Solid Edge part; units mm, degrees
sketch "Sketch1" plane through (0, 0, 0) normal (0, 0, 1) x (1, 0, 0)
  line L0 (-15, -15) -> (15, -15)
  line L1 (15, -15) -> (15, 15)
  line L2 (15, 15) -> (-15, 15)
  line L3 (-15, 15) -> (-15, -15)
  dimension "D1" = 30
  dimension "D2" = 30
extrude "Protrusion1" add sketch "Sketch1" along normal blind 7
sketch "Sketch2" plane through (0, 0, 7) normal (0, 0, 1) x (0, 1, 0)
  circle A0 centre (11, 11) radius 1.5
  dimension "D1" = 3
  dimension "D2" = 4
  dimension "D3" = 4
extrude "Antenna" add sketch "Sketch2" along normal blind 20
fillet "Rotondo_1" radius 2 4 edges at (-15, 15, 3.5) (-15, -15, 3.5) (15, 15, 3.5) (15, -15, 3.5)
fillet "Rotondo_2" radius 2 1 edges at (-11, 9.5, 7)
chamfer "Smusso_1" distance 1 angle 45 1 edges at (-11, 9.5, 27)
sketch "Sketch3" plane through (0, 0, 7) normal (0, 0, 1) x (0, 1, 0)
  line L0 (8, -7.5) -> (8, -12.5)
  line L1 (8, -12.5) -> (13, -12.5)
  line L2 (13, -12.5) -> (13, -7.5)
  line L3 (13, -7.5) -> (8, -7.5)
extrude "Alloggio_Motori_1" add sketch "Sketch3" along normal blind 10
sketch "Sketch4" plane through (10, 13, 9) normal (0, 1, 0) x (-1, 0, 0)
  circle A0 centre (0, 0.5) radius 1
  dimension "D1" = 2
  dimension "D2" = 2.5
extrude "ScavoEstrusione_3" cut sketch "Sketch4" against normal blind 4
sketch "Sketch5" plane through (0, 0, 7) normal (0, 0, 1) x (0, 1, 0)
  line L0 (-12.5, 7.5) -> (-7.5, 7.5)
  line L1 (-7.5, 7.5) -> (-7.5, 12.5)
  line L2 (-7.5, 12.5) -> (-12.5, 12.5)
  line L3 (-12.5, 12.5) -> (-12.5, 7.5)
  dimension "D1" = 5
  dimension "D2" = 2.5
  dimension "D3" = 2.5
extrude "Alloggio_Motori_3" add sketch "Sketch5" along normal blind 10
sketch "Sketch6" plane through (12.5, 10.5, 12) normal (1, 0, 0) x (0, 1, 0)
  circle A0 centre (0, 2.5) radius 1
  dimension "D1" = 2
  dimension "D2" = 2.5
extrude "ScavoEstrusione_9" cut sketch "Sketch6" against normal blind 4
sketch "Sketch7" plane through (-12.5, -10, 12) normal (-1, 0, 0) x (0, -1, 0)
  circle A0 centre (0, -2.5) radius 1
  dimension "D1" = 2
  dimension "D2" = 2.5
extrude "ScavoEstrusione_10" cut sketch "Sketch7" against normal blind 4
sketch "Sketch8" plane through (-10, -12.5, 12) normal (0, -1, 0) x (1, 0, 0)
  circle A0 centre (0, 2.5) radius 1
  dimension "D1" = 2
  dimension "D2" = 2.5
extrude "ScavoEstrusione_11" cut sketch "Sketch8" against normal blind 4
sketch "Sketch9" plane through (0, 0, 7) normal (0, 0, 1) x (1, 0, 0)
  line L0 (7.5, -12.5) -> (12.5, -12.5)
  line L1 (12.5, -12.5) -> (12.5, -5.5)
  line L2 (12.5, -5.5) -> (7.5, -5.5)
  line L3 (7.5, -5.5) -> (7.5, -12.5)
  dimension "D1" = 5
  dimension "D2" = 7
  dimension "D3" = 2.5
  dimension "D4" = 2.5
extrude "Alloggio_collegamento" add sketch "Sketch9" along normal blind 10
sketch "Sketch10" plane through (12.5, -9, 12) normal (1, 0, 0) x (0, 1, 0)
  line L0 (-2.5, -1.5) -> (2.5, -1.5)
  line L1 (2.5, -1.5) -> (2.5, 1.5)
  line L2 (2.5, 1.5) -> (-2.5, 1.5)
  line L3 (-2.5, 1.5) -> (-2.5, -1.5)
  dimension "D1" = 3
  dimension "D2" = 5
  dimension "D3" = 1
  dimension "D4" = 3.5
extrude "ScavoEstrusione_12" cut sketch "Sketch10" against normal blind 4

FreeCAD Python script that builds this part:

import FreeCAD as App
import Part
import Sketcher
from FreeCAD import Vector
Q = App.Units.Quantity


def edges_at(feature, points):
    """Names of the edges that pass closest to the given points."""
    edges = feature.Shape.Edges
    near = lambda p: min(range(len(edges)), key=lambda i: edges[i].distToShape(Part.Vertex(*p))[0])
    return sorted({f"Edge{near(p) + 1}" for p in points})


def add_polygon(sketch, points):
    """Adds a closed chain of lines whose ends are joined by coincident constraints."""
    first, n = sketch.GeometryCount, len(points)
    for a, b in zip(points, points[1:] + points[:1]):
        sketch.addGeometry(Part.LineSegment(App.Vector(*a, 0), App.Vector(*b, 0)), False)
    for i in range(n):
        sketch.addConstraint(Sketcher.Constraint("Coincident", first + i, 2, first + (i + 1) % n, 1))

doc = App.newDocument("Part")
params = doc.addObject("Spreadsheet::Sheet", "Params")
for row, (alias, value) in enumerate([
    ("pad1_length", "7 mm"),
    ("sketch2_diameter", "3 mm"),
    ("pad2_length", "20 mm"),
    ("fillet_radius", "2 mm"),
    ("fillet2_radius", "2 mm"),
    ("chamfer_size", "1 mm"),
    ("sketch3_width", "5 mm"),
    ("pad3_length", "10 mm"),
    ("sketch4_diameter", "2 mm"),
    ("pocket1_length", "4 mm"),
    ("sketch5_width", "5 mm"),
    ("pad4_length", "10 mm"),
    ("sketch6_diameter", "2 mm"),
    ("pocket2_length", "4 mm"),
    ("sketch7_diameter", "2 mm"),
    ("pocket3_length", "4 mm"),
    ("sketch8_diameter", "2 mm"),
    ("pocket4_length", "4 mm"),
    ("sketch9_height", "7 mm"),
    ("pad5_length", "10 mm"),
    ("sketch10_width", "5 mm"),
    ("sketch10_height", "3 mm"),
    ("pocket5_length", "4 mm"),
], start=1):
    params.set(f"A{row}", alias)
    params.set(f"B{row}", "=" + value)
    params.setAlias(f"B{row}", alias)

body = doc.addObject("PartDesign::Body", "Body")

# Sketch on XY plane
sketch1 = body.newObject("Sketcher::SketchObject", "Sketch")
sketch1.AttachmentSupport = (doc.getObject("XY_Plane"), [""])
sketch1.MapMode = "FlatFace"
add_polygon(sketch1, [(-15, 15), (-15, -15), (15, -15), (15, 15)])  # lines 0-3
sketch1.addConstraint([
    Sketcher.Constraint("Vertical", 0),
    Sketcher.Constraint("Horizontal", 1),
    Sketcher.Constraint("Vertical", 2),
    Sketcher.Constraint("Horizontal", 3),
    Sketcher.Constraint("Symmetric", 0, 2, 2, 2, -1, 1),
    Sketcher.Constraint("Equal", 3, 0),
    Sketcher.Constraint("DistanceX", 0, 2, -1, 1, Q("15 mm")),
])
pad1 = body.newObject("PartDesign::Pad", "Pad")
pad1.Profile = sketch1
pad1.setExpression("Length", "Params.pad1_length")

# Sketch on XY plane
sketch2 = body.newObject("Sketcher::SketchObject", "Sketch001")
sketch2.AttachmentSupport = (doc.getObject("XY_Plane"), [""])
sketch2.MapMode = "FlatFace"
sketch2.AttachmentOffset = App.Placement(Vector(0, 0, 7), App.Rotation())
sketch2.addGeometry(Part.Circle(Vector(-11, 11, 0), Vector(0, 0, 1), 1.5), False)
sketch2.addConstraint([
    Sketcher.Constraint("Diameter", 0, Q("3 mm")),
    Sketcher.Constraint("DistanceX", 0, 3, -1, 1, Q("11 mm")),
    Sketcher.Constraint("DistanceY", -1, 1, 0, 3, Q("11 mm")),
])
sketch2.setExpression("Constraints[0]", "Params.sketch2_diameter")
pad2 = body.newObject("PartDesign::Pad", "Pad001")
pad2.Profile = sketch2
pad2.setExpression("Length", "Params.pad2_length")
doc.recompute()

fillet = body.newObject("PartDesign::Fillet", "Fillet")
fillet.Base = (pad2, edges_at(pad2, [
    (-15, 15, 3.5),
    (-15, -15, 3.5),
    (15, 15, 3.5),
    (15, -15, 3.5),
]))
fillet.setExpression("Radius", "Params.fillet_radius")
doc.recompute()

fillet2 = body.newObject("PartDesign::Fillet", "Fillet001")
fillet2.Base = (fillet, edges_at(fillet, [(-11, 9.5, 7)]))
fillet2.setExpression("Radius", "Params.fillet2_radius")
doc.recompute()

chamfer = body.newObject("PartDesign::Chamfer", "Chamfer")
chamfer.Base = (fillet2, edges_at(fillet2, [(-11, 9.5, 27)]))
chamfer.setExpression("Size", "Params.chamfer_size")

# Sketch on XY plane
sketch3 = body.newObject("Sketcher::SketchObject", "Sketch002")
sketch3.AttachmentSupport = (doc.getObject("XY_Plane"), [""])
sketch3.MapMode = "FlatFace"
sketch3.AttachmentOffset = App.Placement(Vector(0, 0, 7), App.Rotation())
add_polygon(sketch3, [(7.5, 13), (7.5, 8), (12.5, 8), (12.5, 13)])  # lines 0-3
sketch3.addConstraint([
    Sketcher.Constraint("Vertical", 0),
    Sketcher.Constraint("Horizontal", 1),
    Sketcher.Constraint("Vertical", 2),
    Sketcher.Constraint("Horizontal", 3),
    Sketcher.Constraint("Equal", 3, 0),
    Sketcher.Constraint("DistanceX", 1, 1, 1, 2, Q("5 mm")),
    Sketcher.Constraint("DistanceY", -1, 1, 0, 2, Q("8 mm")),
    Sketcher.Constraint("DistanceX", -1, 1, 0, 2, Q("7.5 mm")),
])
sketch3.setExpression("Constraints[9]", "Params.sketch3_width")
pad3 = body.newObject("PartDesign::Pad", "Pad002")
pad3.Profile = sketch3
pad3.setExpression("Length", "Params.pad3_length")

# Sketch on XZ plane
sketch4 = body.newObject("Sketcher::SketchObject", "Sketch003")
sketch4.AttachmentSupport = (doc.getObject("XZ_Plane"), [""])
sketch4.MapMode = "FlatFace"
sketch4.AttachmentOffset = App.Placement(Vector(0, 0, -13), App.Rotation())
sketch4.addGeometry(Part.Circle(Vector(10, 9.5, 0), Vector(0, 0, 1), 1), False)
sketch4.addConstraint([
    Sketcher.Constraint("Diameter", 0, Q("2 mm")),
    Sketcher.Constraint("DistanceX", -1, 1, 0, 3, Q("10 mm")),
    Sketcher.Constraint("DistanceY", -1, 1, 0, 3, Q("9.5 mm")),
])
sketch4.setExpression("Constraints[0]", "Params.sketch4_diameter")
pocket1 = body.newObject("PartDesign::Pocket", "Pocket")
pocket1.Profile = sketch4
pocket1.setExpression("Length", "Params.pocket1_length")
pocket1.Reversed = True

# Sketch on XY plane
sketch5 = body.newObject("Sketcher::SketchObject", "Sketch004")
sketch5.AttachmentSupport = (doc.getObject("XY_Plane"), [""])
sketch5.MapMode = "FlatFace"
sketch5.AttachmentOffset = App.Placement(Vector(0, 0, 7), App.Rotation())
add_polygon(sketch5, [(-12.5, -12.5), (-7.5, -12.5), (-7.5, -7.5), (-12.5, -7.5)])  # lines 0-3
sketch5.addConstraint([
    Sketcher.Constraint("Horizontal", 0),
    Sketcher.Constraint("Vertical", 1),
    Sketcher.Constraint("Horizontal", 2),
    Sketcher.Constraint("Vertical", 3),
    Sketcher.Constraint("Equal", 2, 1),
    Sketcher.Constraint("DistanceY", 0, 2, -1, 1, Q("12.5 mm")),
    Sketcher.Constraint("DistanceX", 2, 2, -1, 1, Q("12.5 mm")),
    Sketcher.Constraint("DistanceX", 0, 1, 0, 2, Q("5 mm")),
])
sketch5.setExpression("Constraints[11]", "Params.sketch5_width")
pad4 = body.newObject("PartDesign::Pad", "Pad003")
pad4.Profile = sketch5
pad4.setExpression("Length", "Params.pad4_length")

# Sketch on YZ plane
sketch6 = body.newObject("Sketcher::SketchObject", "Sketch005")
sketch6.AttachmentSupport = (doc.getObject("YZ_Plane"), [""])
sketch6.MapMode = "FlatFace"
sketch6.AttachmentOffset = App.Placement(Vector(0, 0, 12.5), App.Rotation())
sketch6.addGeometry(Part.Circle(Vector(10.5, 14.5, 0), Vector(0, 0, 1), 1), False)
sketch6.addConstraint([
    Sketcher.Constraint("Diameter", 0, Q("2 mm")),
    Sketcher.Constraint("DistanceX", -1, 1, 0, 3, Q("10.5 mm")),
    Sketcher.Constraint("DistanceY", -1, 1, 0, 3, Q("14.5 mm")),
])
sketch6.setExpression("Constraints[0]", "Params.sketch6_diameter")
pocket2 = body.newObject("PartDesign::Pocket", "Pocket001")
pocket2.Profile = sketch6
pocket2.setExpression("Length", "Params.pocket2_length")

# Sketch on YZ plane
sketch7 = body.newObject("Sketcher::SketchObject", "Sketch006")
sketch7.AttachmentSupport = (doc.getObject("YZ_Plane"), [""])
sketch7.MapMode = "FlatFace"
sketch7.AttachmentOffset = App.Placement(Vector(0, 0, -12.5), App.Rotation())
sketch7.addGeometry(Part.Circle(Vector(-10, 9.5, 0), Vector(0, 0, 1), 1), False)
sketch7.addConstraint([
    Sketcher.Constraint("Diameter", 0, Q("2 mm")),
    Sketcher.Constraint("DistanceX", 0, 3, -1, 1, Q("10 mm")),
    Sketcher.Constraint("DistanceY", -1, 1, 0, 3, Q("9.5 mm")),
])
sketch7.setExpression("Constraints[0]", "Params.sketch7_diameter")
pocket3 = body.newObject("PartDesign::Pocket", "Pocket002")
pocket3.Profile = sketch7
pocket3.setExpression("Length", "Params.pocket3_length")
pocket3.Reversed = True

# Sketch on XZ plane
sketch8 = body.newObject("Sketcher::SketchObject", "Sketch007")
sketch8.AttachmentSupport = (doc.getObject("XZ_Plane"), [""])
sketch8.MapMode = "FlatFace"
sketch8.AttachmentOffset = App.Placement(Vector(0, 0, 12.5), App.Rotation())
sketch8.addGeometry(Part.Circle(Vector(-10, 14.5, 0), Vector(0, 0, 1), 1), False)
sketch8.addConstraint([
    Sketcher.Constraint("Diameter", 0, Q("2 mm")),
    Sketcher.Constraint("DistanceX", 0, 3, -1, 1, Q("10 mm")),
    Sketcher.Constraint("DistanceY", -1, 1, 0, 3, Q("14.5 mm")),
])
sketch8.setExpression("Constraints[0]", "Params.sketch8_diameter")
pocket4 = body.newObject("PartDesign::Pocket", "Pocket003")
pocket4.Profile = sketch8
pocket4.setExpression("Length", "Params.pocket4_length")

# Sketch on XY plane
sketch9 = body.newObject("Sketcher::SketchObject", "Sketch008")
sketch9.AttachmentSupport = (doc.getObject("XY_Plane"), [""])
sketch9.MapMode = "FlatFace"
sketch9.AttachmentOffset = App.Placement(Vector(0, 0, 7), App.Rotation())
add_polygon(sketch9, [(7.5, -5.5), (7.5, -12.5), (12.5, -12.5), (12.5, -5.5)])  # lines 0-3
sketch9.addConstraint([
    Sketcher.Constraint("Vertical", 0),
    Sketcher.Constraint("Horizontal", 1),
    Sketcher.Constraint("Vertical", 2),
    Sketcher.Constraint("Horizontal", 3),
    Sketcher.Constraint("DistanceX", -1, 1, 0, 2, Q("7.5 mm")),
    Sketcher.Constraint("DistanceY", 0, 2, -1, 1, Q("12.5 mm")),
    Sketcher.Constraint("DistanceX", -1, 1, 1, 2, Q("12.5 mm")),
    Sketcher.Constraint("DistanceY", 0, 2, 0, 1, Q("7 mm")),
])
sketch9.setExpression("Constraints[11]", "Params.sketch9_height")
pad5 = body.newObject("PartDesign::Pad", "Pad004")
pad5.Profile = sketch9
pad5.setExpression("Length", "Params.pad5_length")

# Sketch on YZ plane
sketch10 = body.newObject("Sketcher::SketchObject", "Sketch009")
sketch10.AttachmentSupport = (doc.getObject("YZ_Plane"), [""])
sketch10.MapMode = "FlatFace"
sketch10.AttachmentOffset = App.Placement(Vector(0, 0, 12.5), App.Rotation())
add_polygon(sketch10, [(-11.5, 13.5), (-11.5, 10.5), (-6.5, 10.5), (-6.5, 13.5)])  # lines 0-3
sketch10.addConstraint([
    Sketcher.Constraint("Vertical", 0),
    Sketcher.Constraint("Horizontal", 1),
    Sketcher.Constraint("Vertical", 2),
    Sketcher.Constraint("Horizontal", 3),
    Sketcher.Constraint("DistanceX", 1, 1, 1, 2, Q("5 mm")),
    Sketcher.Constraint("DistanceY", 0, 2, 0, 1, Q("3 mm")),
    Sketcher.Constraint("DistanceX", 0, 2, -1, 1, Q("11.5 mm")),
    Sketcher.Constraint("DistanceY", -1, 1, 0, 2, Q("10.5 mm")),
])
sketch10.setExpression("Constraints[8]", "Params.sketch10_width")
sketch10.setExpression("Constraints[9]", "Params.sketch10_height")
pocket5 = body.newObject("PartDesign::Pocket", "Pocket004")
pocket5.Profile = sketch10
pocket5.setExpression("Length", "Params.pocket5_length")

doc.recompute()
